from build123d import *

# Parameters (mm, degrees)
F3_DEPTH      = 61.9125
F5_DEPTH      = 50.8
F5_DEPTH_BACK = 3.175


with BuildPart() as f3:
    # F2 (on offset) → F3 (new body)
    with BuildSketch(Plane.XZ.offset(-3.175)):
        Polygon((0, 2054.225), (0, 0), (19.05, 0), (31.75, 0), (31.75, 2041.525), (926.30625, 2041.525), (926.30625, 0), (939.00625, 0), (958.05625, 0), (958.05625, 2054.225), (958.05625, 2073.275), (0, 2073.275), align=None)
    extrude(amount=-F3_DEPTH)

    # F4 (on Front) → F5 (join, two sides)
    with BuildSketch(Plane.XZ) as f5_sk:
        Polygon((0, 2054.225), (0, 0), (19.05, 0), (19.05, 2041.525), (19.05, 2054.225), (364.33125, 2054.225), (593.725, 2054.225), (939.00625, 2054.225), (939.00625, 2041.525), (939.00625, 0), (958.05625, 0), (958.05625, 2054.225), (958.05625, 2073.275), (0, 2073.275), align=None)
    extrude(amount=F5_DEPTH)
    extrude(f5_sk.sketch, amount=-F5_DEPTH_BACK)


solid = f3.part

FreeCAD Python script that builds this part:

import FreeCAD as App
import Part
import Sketcher

V = App.Vector
Q = App.Units.Quantity

doc = App.newDocument("Part")
body = doc.addObject("PartDesign::Body", "Body")

# Sketch on XZ plane
sketch1 = doc.addObject("Sketcher::SketchObject", "Sketch")
body.addObject(sketch1)
sketch1.AttachmentSupport = (doc.XZ_Plane, [""])
sketch1.MapMode = "FlatFace"
sketch1.AttachmentOffset = App.Placement(V(0, 0, -0.125 * 25.4), App.Rotation())
sketch1.addGeometry([
    Part.LineSegment(V(0, 0, 0), V(32, 0, 0)),  # 0
    Part.LineSegment(V(32, 0, 0), V(32, 2042, 0)),  # 1
    Part.LineSegment(V(32, 2042, 0), V(926, 2042, 0)),  # 2
    Part.LineSegment(V(926, 2042, 0), V(926, 0, 0)),  # 3
    Part.LineSegment(V(926, 0, 0), V(958, 0, 0)),  # 4
    Part.LineSegment(V(958, 0, 0), V(958, 2073, 0)),  # 5
    Part.LineSegment(V(958, 2073, 0), V(0, 2073, 0)),  # 6
    Part.LineSegment(V(0, 2073, 0), V(0, 0, 0)),  # 7
], False)
sketch1.addConstraint([
    Sketcher.Constraint("Coincident", 0, 2, 1, 1),
    Sketcher.Constraint("Coincident", 1, 2, 2, 1),
    Sketcher.Constraint("Coincident", 2, 2, 3, 1),
    Sketcher.Constraint("Coincident", 3, 2, 4, 1),
    Sketcher.Constraint("Coincident", 4, 2, 5, 1),
    Sketcher.Constraint("Coincident", 5, 2, 6, 1),
    Sketcher.Constraint("Coincident", 6, 2, 7, 1),
    Sketcher.Constraint("Coincident", 7, 2, 0, 1),
    Sketcher.Constraint("Horizontal", 0),
    Sketcher.Constraint("Vertical", 1),
    Sketcher.Constraint("Horizontal", 2),
    Sketcher.Constraint("Vertical", 3),
    Sketcher.Constraint("Horizontal", 4),
    Sketcher.Constraint("Vertical", 5),
    Sketcher.Constraint("Horizontal", 6),
    Sketcher.Constraint("Vertical", 7),
    Sketcher.Constraint("Coincident", 7, 2, -1, 1),
    Sketcher.Constraint("PointOnObject", 3, 2, -1),
    Sketcher.Constraint("Equal", 0, 4),
    Sketcher.Constraint("DistanceX", 0, 1, 0, 2, Q("1.25 in")),
    Sketcher.Constraint("DistanceX", 2, 1, 2, 2, Q("35.21875 in")),
    Sketcher.Constraint("DistanceY", 1, 1, 1, 2, Q("80.375 in")),
    Sketcher.Constraint("DistanceY", 5, 1, 5, 2, Q("81.625 in")),
])
pad1 = doc.addObject("PartDesign::Pad", "Pad")
body.addObject(pad1)
pad1.Profile = sketch1
pad1.Length = Q("2.4375 in")
pad1.Reversed = True

# Sketch on XZ plane
sketch2 = doc.addObject("Sketcher::SketchObject", "Sketch001")
body.addObject(sketch2)
sketch2.AttachmentSupport = (doc.XZ_Plane, [""])
sketch2.MapMode = "FlatFace"
sketch2.addGeometry([
    Part.LineSegment(V(0, 0, 0), V(19, 0, 0)),  # 0
    Part.LineSegment(V(19, 0, 0), V(19, 2054, 0)),  # 1
    Part.LineSegment(V(19, 2054, 0), V(939, 2054, 0)),  # 2
    Part.LineSegment(V(939, 2054, 0), V(939, 0, 0)),  # 3
    Part.LineSegment(V(939, 0, 0), V(958, 0, 0)),  # 4
    Part.LineSegment(V(958, 0, 0), V(958, 2073, 0)),  # 5
    Part.LineSegment(V(958, 2073, 0), V(0, 2073, 0)),  # 6
    Part.LineSegment(V(0, 2073, 0), V(0, 0, 0)),  # 7
], False)
sketch2.addConstraint([
    Sketcher.Constraint("Coincident", 0, 2, 1, 1),
    Sketcher.Constraint("Coincident", 1, 2, 2, 1),
    Sketcher.Constraint("Coincident", 2, 2, 3, 1),
    Sketcher.Constraint("Coincident", 3, 2, 4, 1),
    Sketcher.Constraint("Coincident", 4, 2, 5, 1),
    Sketcher.Constraint("Coincident", 5, 2, 6, 1),
    Sketcher.Constraint("Coincident", 6, 2, 7, 1),
    Sketcher.Constraint("Coincident", 7, 2, 0, 1),
    Sketcher.Constraint("Horizontal", 0),
    Sketcher.Constraint("Vertical", 1),
    Sketcher.Constraint("Horizontal", 2),
    Sketcher.Constraint("Vertical", 3),
    Sketcher.Constraint("Horizontal", 4),
    Sketcher.Constraint("Vertical", 5),
    Sketcher.Constraint("Horizontal", 6),
    Sketcher.Constraint("Vertical", 7),
    Sketcher.Constraint("Coincident", 7, 2, -1, 1),
    Sketcher.Constraint("PointOnObject", 3, 2, -1),
    Sketcher.Constraint("Equal", 0, 4),
    Sketcher.Constraint("DistanceX", 0, 1, 0, 2, Q("0.75 in")),
    Sketcher.Constraint("DistanceX", 2, 1, 2, 2, Q("36.21875 in")),
    Sketcher.Constraint("DistanceY", 1, 1, 1, 2, Q("80.875 in")),
    Sketcher.Constraint("DistanceY", 5, 1, 5, 2, Q("81.625 in")),
])
pad2 = doc.addObject("PartDesign::Pad", "Pad001")
body.addObject(pad2)
pad2.Profile = sketch2
pad2.Type = "TwoLengths"
pad2.Length = Q("2 in")
pad2.Length2 = Q("0.125 in")

doc.recompute()
